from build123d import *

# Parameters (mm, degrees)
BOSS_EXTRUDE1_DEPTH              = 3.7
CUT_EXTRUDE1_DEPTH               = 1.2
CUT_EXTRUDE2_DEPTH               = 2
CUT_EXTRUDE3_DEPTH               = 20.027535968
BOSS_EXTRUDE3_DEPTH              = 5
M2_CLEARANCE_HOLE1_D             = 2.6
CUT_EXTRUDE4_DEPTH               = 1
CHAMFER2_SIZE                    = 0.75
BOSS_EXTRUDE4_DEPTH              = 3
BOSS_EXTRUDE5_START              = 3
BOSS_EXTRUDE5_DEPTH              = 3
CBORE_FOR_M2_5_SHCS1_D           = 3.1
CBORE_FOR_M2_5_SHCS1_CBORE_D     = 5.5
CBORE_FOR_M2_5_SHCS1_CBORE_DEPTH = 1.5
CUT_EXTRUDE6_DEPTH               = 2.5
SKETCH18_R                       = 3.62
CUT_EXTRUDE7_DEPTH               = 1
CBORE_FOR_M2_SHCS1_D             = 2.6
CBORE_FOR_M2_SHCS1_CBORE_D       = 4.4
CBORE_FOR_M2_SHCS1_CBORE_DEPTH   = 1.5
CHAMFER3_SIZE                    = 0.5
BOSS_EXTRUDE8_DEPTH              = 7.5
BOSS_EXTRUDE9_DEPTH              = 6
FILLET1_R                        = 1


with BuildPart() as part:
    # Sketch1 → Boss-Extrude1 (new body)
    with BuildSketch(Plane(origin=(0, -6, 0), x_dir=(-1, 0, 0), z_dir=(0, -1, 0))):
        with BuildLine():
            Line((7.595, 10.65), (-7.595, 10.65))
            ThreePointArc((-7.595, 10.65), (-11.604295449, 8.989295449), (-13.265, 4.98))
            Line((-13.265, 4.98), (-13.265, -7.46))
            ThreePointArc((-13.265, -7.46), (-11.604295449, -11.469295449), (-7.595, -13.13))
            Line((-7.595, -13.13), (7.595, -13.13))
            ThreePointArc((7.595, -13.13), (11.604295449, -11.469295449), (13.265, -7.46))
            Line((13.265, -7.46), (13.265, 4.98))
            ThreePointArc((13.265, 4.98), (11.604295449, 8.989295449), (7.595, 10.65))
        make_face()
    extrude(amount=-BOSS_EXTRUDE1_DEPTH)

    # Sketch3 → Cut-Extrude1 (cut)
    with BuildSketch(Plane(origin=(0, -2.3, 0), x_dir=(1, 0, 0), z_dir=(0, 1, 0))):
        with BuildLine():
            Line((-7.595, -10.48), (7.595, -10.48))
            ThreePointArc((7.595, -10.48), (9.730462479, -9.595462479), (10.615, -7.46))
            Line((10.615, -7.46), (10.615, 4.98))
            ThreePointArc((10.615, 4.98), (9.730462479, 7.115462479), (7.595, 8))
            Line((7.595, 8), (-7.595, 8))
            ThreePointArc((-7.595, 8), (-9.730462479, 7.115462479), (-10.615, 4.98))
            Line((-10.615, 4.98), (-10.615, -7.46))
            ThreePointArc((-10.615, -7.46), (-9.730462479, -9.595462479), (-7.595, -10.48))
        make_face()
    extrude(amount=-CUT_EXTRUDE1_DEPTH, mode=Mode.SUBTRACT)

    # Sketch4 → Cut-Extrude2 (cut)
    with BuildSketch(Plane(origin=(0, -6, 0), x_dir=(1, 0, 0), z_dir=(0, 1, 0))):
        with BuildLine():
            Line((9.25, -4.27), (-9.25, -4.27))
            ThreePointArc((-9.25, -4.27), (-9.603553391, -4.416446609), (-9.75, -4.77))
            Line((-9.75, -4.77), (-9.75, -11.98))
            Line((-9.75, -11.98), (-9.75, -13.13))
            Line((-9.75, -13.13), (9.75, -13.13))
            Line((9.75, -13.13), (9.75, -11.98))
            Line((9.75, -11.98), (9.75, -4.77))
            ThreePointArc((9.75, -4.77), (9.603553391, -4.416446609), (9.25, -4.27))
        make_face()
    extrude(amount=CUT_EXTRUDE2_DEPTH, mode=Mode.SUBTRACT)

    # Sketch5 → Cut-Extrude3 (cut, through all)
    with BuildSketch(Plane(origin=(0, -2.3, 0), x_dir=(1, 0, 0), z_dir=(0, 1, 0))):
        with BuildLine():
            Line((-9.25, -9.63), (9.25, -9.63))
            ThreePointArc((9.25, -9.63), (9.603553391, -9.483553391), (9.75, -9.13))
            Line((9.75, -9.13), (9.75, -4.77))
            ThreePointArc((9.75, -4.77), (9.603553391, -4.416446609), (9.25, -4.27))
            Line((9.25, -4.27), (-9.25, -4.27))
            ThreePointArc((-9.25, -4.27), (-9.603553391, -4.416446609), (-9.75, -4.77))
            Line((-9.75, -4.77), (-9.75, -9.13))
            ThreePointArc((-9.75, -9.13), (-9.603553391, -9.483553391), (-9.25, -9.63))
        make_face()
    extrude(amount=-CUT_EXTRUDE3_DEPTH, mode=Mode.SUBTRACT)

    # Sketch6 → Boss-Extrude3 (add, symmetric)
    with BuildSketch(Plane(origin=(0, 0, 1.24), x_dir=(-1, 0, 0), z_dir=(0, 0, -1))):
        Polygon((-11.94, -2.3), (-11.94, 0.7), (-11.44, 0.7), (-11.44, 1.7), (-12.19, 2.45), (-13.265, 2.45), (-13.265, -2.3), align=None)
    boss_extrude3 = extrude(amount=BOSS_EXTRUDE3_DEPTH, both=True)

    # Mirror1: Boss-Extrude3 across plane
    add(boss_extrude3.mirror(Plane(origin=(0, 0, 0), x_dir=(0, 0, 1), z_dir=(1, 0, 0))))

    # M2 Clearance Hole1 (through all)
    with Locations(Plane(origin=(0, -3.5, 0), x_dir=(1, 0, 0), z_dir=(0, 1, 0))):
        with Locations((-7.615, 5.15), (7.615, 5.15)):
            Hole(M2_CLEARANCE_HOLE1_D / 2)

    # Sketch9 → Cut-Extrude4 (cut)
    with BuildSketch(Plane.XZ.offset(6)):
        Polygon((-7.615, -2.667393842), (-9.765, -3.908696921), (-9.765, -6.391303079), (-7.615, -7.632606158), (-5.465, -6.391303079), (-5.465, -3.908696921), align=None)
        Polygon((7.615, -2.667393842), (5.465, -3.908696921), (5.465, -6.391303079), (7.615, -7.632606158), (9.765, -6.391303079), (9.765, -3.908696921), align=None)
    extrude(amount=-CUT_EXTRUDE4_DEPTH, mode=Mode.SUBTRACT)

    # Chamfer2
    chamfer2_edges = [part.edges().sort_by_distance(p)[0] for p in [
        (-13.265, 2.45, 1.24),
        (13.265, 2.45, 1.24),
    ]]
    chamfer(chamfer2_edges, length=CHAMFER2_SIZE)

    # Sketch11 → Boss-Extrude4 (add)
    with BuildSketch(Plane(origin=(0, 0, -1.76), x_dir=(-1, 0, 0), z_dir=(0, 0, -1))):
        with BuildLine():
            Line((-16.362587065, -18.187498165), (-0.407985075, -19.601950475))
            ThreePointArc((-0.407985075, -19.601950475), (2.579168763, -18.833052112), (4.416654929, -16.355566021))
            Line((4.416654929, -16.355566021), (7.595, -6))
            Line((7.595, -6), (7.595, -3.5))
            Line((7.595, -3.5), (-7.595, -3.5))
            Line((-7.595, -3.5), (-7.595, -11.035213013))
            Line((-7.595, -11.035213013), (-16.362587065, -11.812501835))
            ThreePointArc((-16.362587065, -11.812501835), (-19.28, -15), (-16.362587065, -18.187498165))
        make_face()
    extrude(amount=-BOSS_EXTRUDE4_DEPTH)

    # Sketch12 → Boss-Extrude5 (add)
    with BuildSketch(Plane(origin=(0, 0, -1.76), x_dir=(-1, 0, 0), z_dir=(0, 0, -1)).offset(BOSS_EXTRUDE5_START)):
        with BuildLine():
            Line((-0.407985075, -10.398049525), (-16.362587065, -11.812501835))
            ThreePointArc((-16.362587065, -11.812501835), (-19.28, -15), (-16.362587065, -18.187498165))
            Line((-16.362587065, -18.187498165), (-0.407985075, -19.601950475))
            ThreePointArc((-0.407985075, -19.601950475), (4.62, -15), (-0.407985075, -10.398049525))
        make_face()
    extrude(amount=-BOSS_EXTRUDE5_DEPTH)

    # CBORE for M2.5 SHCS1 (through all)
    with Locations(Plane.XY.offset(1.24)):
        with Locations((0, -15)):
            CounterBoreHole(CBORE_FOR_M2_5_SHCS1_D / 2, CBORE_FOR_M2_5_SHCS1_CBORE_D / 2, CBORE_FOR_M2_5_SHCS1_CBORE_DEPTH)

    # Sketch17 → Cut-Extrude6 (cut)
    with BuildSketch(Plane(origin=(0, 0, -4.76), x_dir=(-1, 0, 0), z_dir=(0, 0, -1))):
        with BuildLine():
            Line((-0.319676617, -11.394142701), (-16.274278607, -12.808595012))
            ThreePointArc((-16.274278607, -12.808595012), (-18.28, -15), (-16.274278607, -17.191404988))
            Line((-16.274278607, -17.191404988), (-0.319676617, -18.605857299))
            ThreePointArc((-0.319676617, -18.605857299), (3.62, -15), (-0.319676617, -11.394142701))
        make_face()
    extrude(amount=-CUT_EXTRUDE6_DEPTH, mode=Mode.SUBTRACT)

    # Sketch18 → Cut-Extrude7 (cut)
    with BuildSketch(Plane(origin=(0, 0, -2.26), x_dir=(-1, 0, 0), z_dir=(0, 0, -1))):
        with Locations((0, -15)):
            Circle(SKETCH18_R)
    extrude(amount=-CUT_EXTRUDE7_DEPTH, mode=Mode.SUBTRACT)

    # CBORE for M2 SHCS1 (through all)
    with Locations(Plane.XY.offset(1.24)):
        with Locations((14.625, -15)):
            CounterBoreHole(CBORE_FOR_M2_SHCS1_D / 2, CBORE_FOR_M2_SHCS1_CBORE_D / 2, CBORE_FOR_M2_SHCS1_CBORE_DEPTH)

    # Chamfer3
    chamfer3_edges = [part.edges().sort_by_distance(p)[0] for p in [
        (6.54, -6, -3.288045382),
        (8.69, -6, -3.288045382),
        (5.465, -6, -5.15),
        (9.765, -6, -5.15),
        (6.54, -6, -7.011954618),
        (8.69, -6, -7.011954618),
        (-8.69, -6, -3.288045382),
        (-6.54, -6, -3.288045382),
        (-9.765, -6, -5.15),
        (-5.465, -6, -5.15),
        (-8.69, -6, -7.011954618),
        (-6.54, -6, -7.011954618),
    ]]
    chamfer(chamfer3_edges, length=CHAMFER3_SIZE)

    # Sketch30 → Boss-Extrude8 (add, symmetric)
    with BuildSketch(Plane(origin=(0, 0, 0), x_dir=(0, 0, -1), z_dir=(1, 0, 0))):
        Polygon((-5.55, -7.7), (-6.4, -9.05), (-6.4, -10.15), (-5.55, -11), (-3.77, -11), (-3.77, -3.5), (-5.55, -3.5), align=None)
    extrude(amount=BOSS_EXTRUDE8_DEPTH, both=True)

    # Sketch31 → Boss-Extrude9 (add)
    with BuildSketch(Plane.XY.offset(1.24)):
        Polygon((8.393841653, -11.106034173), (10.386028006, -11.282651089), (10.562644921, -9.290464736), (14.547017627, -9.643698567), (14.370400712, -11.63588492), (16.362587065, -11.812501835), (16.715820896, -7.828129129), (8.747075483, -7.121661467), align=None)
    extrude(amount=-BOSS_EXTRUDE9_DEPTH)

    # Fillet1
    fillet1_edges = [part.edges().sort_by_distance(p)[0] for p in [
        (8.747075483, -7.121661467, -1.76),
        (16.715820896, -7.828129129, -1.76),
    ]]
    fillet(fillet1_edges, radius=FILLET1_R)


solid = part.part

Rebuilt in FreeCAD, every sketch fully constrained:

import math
import FreeCAD as App
import Part
import Sketcher
from FreeCAD import Vector
Q = App.Units.Quantity


def edges_at(feature, points):
    """Names of the edges that pass closest to the given points."""
    edges = feature.Shape.Edges
    near = lambda p: min(range(len(edges)), key=lambda i: edges[i].distToShape(Part.Vertex(*p))[0])
    return sorted({f"Edge{near(p) + 1}" for p in points})

doc = App.newDocument("Part")
body = doc.addObject("PartDesign::Body", "Body")

# Sketch on XZ plane
sketch1 = body.newObject("Sketcher::SketchObject", "Sketch")
sketch1.AttachmentSupport = (doc.getObject("XZ_Plane"), [""])
sketch1.MapMode = "FlatFace"
sketch1.AttachmentOffset = App.Placement(Vector(0, 0, 6), App.Rotation())
sketch1.addGeometry([
    Part.LineSegment(Vector(-8, -11, 0), Vector(8, -11, 0)),  # 0
    Part.ArcOfCircle(Part.Circle(Vector(8, -5, 0), Vector(0, 0, 1), 6), math.radians(-90), math.radians(0)),  # 1
    Part.LineSegment(Vector(13, -5, 0), Vector(13, 7, 0)),  # 2
    Part.ArcOfCircle(Part.Circle(Vector(8, 7, 0), Vector(0, 0, 1), 6), math.radians(0), math.radians(90)),  # 3
    Part.LineSegment(Vector(8, 13, 0), Vector(-8, 13, 0)),  # 4
    Part.ArcOfCircle(Part.Circle(Vector(-8, 7, 0), Vector(0, 0, 1), 6), math.radians(90), math.radians(180)),  # 5
    Part.LineSegment(Vector(-13, 7, 0), Vector(-13, -5, 0)),  # 6
    Part.ArcOfCircle(Part.Circle(Vector(-8, -5, 0), Vector(0, 0, 1), 6), math.radians(-180), math.radians(-90)),  # 7
], False)
sketch1.addConstraint([
    Sketcher.Constraint("Tangent", 0, 2, 1, 1),
    Sketcher.Constraint("Tangent", 1, 2, 2, 1),
    Sketcher.Constraint("Tangent", 2, 2, 3, 1),
    Sketcher.Constraint("Tangent", 3, 2, 4, 1),
    Sketcher.Constraint("Tangent", 4, 2, 5, 1),
    Sketcher.Constraint("Tangent", 5, 2, 6, 1),
    Sketcher.Constraint("Tangent", 6, 2, 7, 1),
    Sketcher.Constraint("Tangent", 7, 2, 0, 1),
    Sketcher.Constraint("Horizontal", 0),
    Sketcher.Constraint("Vertical", 2),
    Sketcher.Constraint("Horizontal", 4),
    Sketcher.Constraint("Vertical", 6),
    Sketcher.Constraint("Equal", 1, 3),
    Sketcher.Constraint("Equal", 3, 5),
    Sketcher.Constraint("Equal", 5, 7),
    Sketcher.Constraint("Radius", 1, Q("5.67 mm")),
    Sketcher.Constraint("DistanceX", 0, 1, 0, 2, Q("15.19 mm")),
    Sketcher.Constraint("DistanceY", 2, 1, 2, 2, Q("12.44 mm")),
    Sketcher.Constraint("DistanceY", 1, 3, -1, 1, Q("4.98 mm")),
    Sketcher.Constraint("DistanceX", -1, 1, 1, 3, Q("7.595 mm")),
])
pad1 = body.newObject("PartDesign::Pad", "Pad")
pad1.Profile = sketch1
pad1.Length = 3.7
pad1.Reversed = True

# Sketch on XZ plane
sketch2 = body.newObject("Sketcher::SketchObject", "Sketch001")
sketch2.AttachmentSupport = (doc.getObject("XZ_Plane"), [""])
sketch2.MapMode = "FlatFace"
sketch2.AttachmentOffset = App.Placement(Vector(0, 0, 2.3), App.Rotation())
sketch2.addGeometry([
    Part.LineSegment(Vector(-7.6, 10.5, 0), Vector(7.6, 10.5, 0)),  # 0
    Part.ArcOfCircle(Part.Circle(Vector(7.6, 7.5, 0), Vector(0, 0, 1), 3), math.radians(0), math.radians(90)),  # 1
    Part.LineSegment(Vector(10.6, 7.5, 0), Vector(10.6, -5, 0)),  # 2
    Part.ArcOfCircle(Part.Circle(Vector(7.6, -5, 0), Vector(0, 0, 1), 3), math.radians(-90), math.radians(0)),  # 3
    Part.LineSegment(Vector(7.6, -8, 0), Vector(-7.6, -8, 0)),  # 4
    Part.ArcOfCircle(Part.Circle(Vector(-7.6, -5, 0), Vector(0, 0, 1), 3), math.radians(-180), math.radians(-90)),  # 5
    Part.LineSegment(Vector(-10.6, -5, 0), Vector(-10.6, 7.5, 0)),  # 6
    Part.ArcOfCircle(Part.Circle(Vector(-7.6, 7.5, 0), Vector(0, 0, 1), 3), math.radians(90), math.radians(180)),  # 7
], False)
sketch2.addConstraint([
    Sketcher.Constraint("Tangent", 0, 2, 1, 2),
    Sketcher.Constraint("Tangent", 1, 1, 2, 1),
    Sketcher.Constraint("Tangent", 2, 2, 3, 2),
    Sketcher.Constraint("Tangent", 3, 1, 4, 1),
    Sketcher.Constraint("Tangent", 4, 2, 5, 2),
    Sketcher.Constraint("Tangent", 5, 1, 6, 1),
    Sketcher.Constraint("Tangent", 6, 2, 7, 2),
    Sketcher.Constraint("Tangent", 7, 1, 0, 1),
    Sketcher.Constraint("Horizontal", 0),
    Sketcher.Constraint("Vertical", 2),
    Sketcher.Constraint("Horizontal", 4),
    Sketcher.Constraint("Vertical", 6),
    Sketcher.Constraint("Equal", 1, 3),
    Sketcher.Constraint("Equal", 3, 5),
    Sketcher.Constraint("Equal", 5, 7),
    Sketcher.Constraint("Radius", 1, Q("3.02 mm")),
    Sketcher.Constraint("DistanceY", 3, 1, -1, 1, Q("8 mm")),
    Sketcher.Constraint("DistanceX", 0, 1, 0, 2, Q("15.19 mm")),
    Sketcher.Constraint("DistanceY", 2, 2, 2, 1, Q("12.44 mm")),
    Sketcher.Constraint("DistanceX", -1, 1, 1, 3, Q("7.595 mm")),
])
pocket1 = body.newObject("PartDesign::Pocket", "Pocket")
pocket1.Profile = sketch2
pocket1.Length = 1.2
pocket1.Reversed = True

# Sketch on XZ plane
sketch3 = body.newObject("Sketcher::SketchObject", "Sketch002")
sketch3.AttachmentSupport = (doc.getObject("XZ_Plane"), [""])
sketch3.MapMode = "FlatFace"
sketch3.AttachmentOffset = App.Placement(Vector(0, 0, 6), App.Rotation())
sketch3.addGeometry([
    Part.LineSegment(Vector(9.25, 4.27, 0), Vector(-9.25, 4.27, 0)),  # 0
    Part.ArcOfCircle(Part.Circle(Vector(-9.25, 4.77, 0), Vector(0, 0, 1), 0.5), math.radians(180), math.radians(270)),  # 1
    Part.LineSegment(Vector(-9.75, 4.77, 0), Vector(-9.75, 13.13, 0)),  # 2
    Part.LineSegment(Vector(-9.75, 13.13, 0), Vector(9.75, 13.13, 0)),  # 3
    Part.LineSegment(Vector(9.75, 13.13, 0), Vector(9.75, 4.77, 0)),  # 4
    Part.ArcOfCircle(Part.Circle(Vector(9.25, 4.77, 0), Vector(0, 0, 1), 0.5), math.radians(-90), math.radians(0)),  # 5
], False)
sketch3.addConstraint([
    Sketcher.Constraint("Tangent", 0, 2, 1, 2),
    Sketcher.Constraint("Tangent", 1, 1, 2, 1),
    Sketcher.Constraint("Coincident", 2, 2, 3, 1),
    Sketcher.Constraint("Coincident", 3, 2, 4, 1),
    Sketcher.Constraint("Tangent", 4, 2, 5, 2),
    Sketcher.Constraint("Tangent", 5, 1, 0, 1),
    Sketcher.Constraint("Horizontal", 0),
    Sketcher.Constraint("Vertical", 2),
    Sketcher.Constraint("Horizontal", 3),
    Sketcher.Constraint("Vertical", 4),
    Sketcher.Constraint("Equal", 1, 5),
    Sketcher.Constraint("Radius", 1, Q("0.5 mm")),
    Sketcher.Constraint("DistanceX", 0, 2, 0, 1, Q("18.5 mm")),
    Sketcher.Constraint("DistanceY", 2, 1, 2, 2, Q("8.36 mm")),
    Sketcher.Constraint("DistanceX", 1, 3, -1, 1, Q("9.25 mm")),
    Sketcher.Constraint("DistanceY", -1, 1, 1, 3, Q("4.77 mm")),
])
pocket2 = body.newObject("PartDesign::Pocket", "Pocket001")
pocket2.Profile = sketch3
pocket2.Length = 2

# Sketch on XZ plane
sketch4 = body.newObject("Sketcher::SketchObject", "Sketch003")
sketch4.AttachmentSupport = (doc.getObject("XZ_Plane"), [""])
sketch4.MapMode = "FlatFace"
sketch4.AttachmentOffset = App.Placement(Vector(0, 0, 2.3), App.Rotation())
sketch4.addGeometry([
    Part.LineSegment(Vector(-9.25, 9.63, 0), Vector(9.25, 9.63, 0)),  # 0
    Part.ArcOfCircle(Part.Circle(Vector(9.25, 9.13, 0), Vector(0, 0, 1), 0.5), math.radians(0), math.radians(90)),  # 1
    Part.LineSegment(Vector(9.75, 9.13, 0), Vector(9.75, 4.77, 0)),  # 2
    Part.ArcOfCircle(Part.Circle(Vector(9.25, 4.77, 0), Vector(0, 0, 1), 0.5), math.radians(-90), math.radians(0)),  # 3
    Part.LineSegment(Vector(9.25, 4.27, 0), Vector(-9.25, 4.27, 0)),  # 4
    Part.ArcOfCircle(Part.Circle(Vector(-9.25, 4.77, 0), Vector(0, 0, 1), 0.5), math.radians(180), math.radians(270)),  # 5
    Part.LineSegment(Vector(-9.75, 4.77, 0), Vector(-9.75, 9.13, 0)),  # 6
    Part.ArcOfCircle(Part.Circle(Vector(-9.25, 9.13, 0), Vector(0, 0, 1), 0.5), math.radians(90), math.radians(180)),  # 7
], False)
sketch4.addConstraint([
    Sketcher.Constraint("Tangent", 0, 2, 1, 2),
    Sketcher.Constraint("Tangent", 1, 1, 2, 1),
    Sketcher.Constraint("Tangent", 2, 2, 3, 2),
    Sketcher.Constraint("Tangent", 3, 1, 4, 1),
    Sketcher.Constraint("Tangent", 4, 2, 5, 2),
    Sketcher.Constraint("Tangent", 5, 1, 6, 1),
    Sketcher.Constraint("Tangent", 6, 2, 7, 2),
    Sketcher.Constraint("Tangent", 7, 1, 0, 1),
    Sketcher.Constraint("Horizontal", 0),
    Sketcher.Constraint("Vertical", 2),
    Sketcher.Constraint("Horizontal", 4),
    Sketcher.Constraint("Vertical", 6),
    Sketcher.Constraint("Equal", 1, 3),
    Sketcher.Constraint("Equal", 3, 5),
    Sketcher.Constraint("Equal", 5, 7),
    Sketcher.Constraint("Radius", 1, Q("0.5 mm")),
    Sketcher.Constraint("DistanceX", 0, 1, 0, 2, Q("18.5 mm")),
    Sketcher.Constraint("DistanceY", 2, 2, 2, 1, Q("4.36 mm")),
    Sketcher.Constraint("DistanceX", -1, 1, 1, 3, Q("9.25 mm")),
    Sketcher.Constraint("DistanceY", -1, 1, 1, 3, Q("9.13 mm")),
])
pocket3 = body.newObject("PartDesign::Pocket", "Pocket002")
pocket3.Profile = sketch4
pocket3.Type = "ThroughAll"
pocket3.Reversed = True

# Sketch on XY plane
sketch5 = body.newObject("Sketcher::SketchObject", "Sketch004")
sketch5.AttachmentSupport = (doc.getObject("XY_Plane"), [""])
sketch5.MapMode = "FlatFace"
sketch5.AttachmentOffset = App.Placement(Vector(0, 0, 1.24), App.Rotation())
sketch5.addGeometry([
    Part.LineSegment(Vector(11.9, -2.3, 0), Vector(11.9, 0.7, 0)),  # 0
    Part.LineSegment(Vector(11.9, 0.7, 0), Vector(11.4, 0.7, 0)),  # 1
    Part.LineSegment(Vector(11.4, 0.7, 0), Vector(11.4, 1.7, 0)),  # 2
    Part.LineSegment(Vector(11.4, 1.7, 0), Vector(12.2, 2.5, 0)),  # 3
    Part.LineSegment(Vector(12.2, 2.5, 0), Vector(13.3, 2.5, 0)),  # 4
    Part.LineSegment(Vector(13.3, 2.5, 0), Vector(13.3, -2.3, 0)),  # 5
    Part.LineSegment(Vector(13.3, -2.3, 0), Vector(11.9, -2.3, 0)),  # 6
], False)
sketch5.addConstraint([
    Sketcher.Constraint("Coincident", 0, 2, 1, 1),
    Sketcher.Constraint("Coincident", 1, 2, 2, 1),
    Sketcher.Constraint("Coincident", 2, 2, 3, 1),
    Sketcher.Constraint("Coincident", 3, 2, 4, 1),
    Sketcher.Constraint("Coincident", 4, 2, 5, 1),
    Sketcher.Constraint("Coincident", 5, 2, 6, 1),
    Sketcher.Constraint("Coincident", 6, 2, 0, 1),
    Sketcher.Constraint("Vertical", 0),
    Sketcher.Constraint("Horizontal", 1),
    Sketcher.Constraint("Vertical", 2),
    Sketcher.Constraint("Horizontal", 4),
    Sketcher.Constraint("Vertical", 5),
    Sketcher.Constraint("Horizontal", 6),
    Sketcher.Constraint("DistanceY", 0, 1, 0, 2, Q("3 mm")),
    Sketcher.Constraint("DistanceY", 2, 1, 2, 2, Q("1 mm")),
    Sketcher.Constraint("Angle", 3, Q("45 deg")),
    Sketcher.Constraint("DistanceX", 1, 2, 1, 1, Q("0.5 mm")),
    Sketcher.Constraint("DistanceY", 5, 2, 5, 1, Q("4.75 mm")),
    Sketcher.Constraint("DistanceY", -1, 1, 0, 2, Q("0.7 mm")),
    Sketcher.Constraint("DistanceX", 4, 1, 4, 2, Q("1.075 mm")),
    Sketcher.Constraint("DistanceX", -1, 1, 0, 2, Q("11.94 mm")),
])
pad2 = body.newObject("PartDesign::Pad", "Pad001")
pad2.Profile = sketch5
pad2.Length = 10
pad2.Midplane = True
doc.recompute()

mirrored = body.newObject("PartDesign::Mirrored", "Mirrored")
mirrored.Originals = [pad2]
mirrored.MirrorPlane = (doc.getObject("YZ_Plane"), [""])
body.Tip = mirrored

# Sketch on XZ plane
sketch6 = body.newObject("Sketcher::SketchObject", "Sketch005")
sketch6.AttachmentSupport = (doc.getObject("XZ_Plane"), [""])
sketch6.MapMode = "FlatFace"
sketch6.AttachmentOffset = App.Placement(Vector(0, 0, 3.5), App.Rotation())
sketch6.addGeometry([
    Part.Circle(Vector(-7.6, -5.2, 0), Vector(0, 0, 1), 1.3),
    Part.Circle(Vector(7.6, -5.2, 0), Vector(0, 0, 1), 1.3),
], False)
sketch6.addConstraint([
    Sketcher.Constraint("Equal", 0, 1),
    Sketcher.Constraint("Symmetric", 0, 3, 1, 3, -2),
    Sketcher.Constraint("Diameter", 0, Q("2.6 mm")),
    Sketcher.Constraint("DistanceY", 0, 3, -1, 1, Q("5.15 mm")),
    Sketcher.Constraint("DistanceX", 0, 3, 1, 3, Q("15.23 mm")),
])
doc.recompute()
hole = body.newObject("PartDesign::Hole", "Hole")
hole.Profile = sketch6
hole.ThreadType = "None"
hole.Diameter = 2.6
hole.DepthType = "ThroughAll"
hole.Reversed = True

# Sketch on XZ plane
sketch7 = body.newObject("Sketcher::SketchObject", "Sketch006")
sketch7.AttachmentSupport = (doc.getObject("XZ_Plane"), [""])
sketch7.MapMode = "FlatFace"
sketch7.AttachmentOffset = App.Placement(Vector(0, 0, 6), App.Rotation())
sketch7.addGeometry([
    Part.LineSegment(Vector(-7.6, -2.7, 0), Vector(-9.8, -3.9, 0)),  # 0
    Part.LineSegment(Vector(-9.8, -3.9, 0), Vector(-9.8, -6.4, 0)),  # 1
    Part.LineSegment(Vector(-9.8, -6.4, 0), Vector(-7.6, -7.6, 0)),  # 2
    Part.LineSegment(Vector(-7.6, -7.6, 0), Vector(-5.5, -6.4, 0)),  # 3
    Part.LineSegment(Vector(-5.5, -6.4, 0), Vector(-5.5, -3.9, 0)),  # 4
    Part.LineSegment(Vector(-5.5, -3.9, 0), Vector(-7.6, -2.7, 0)),  # 5
    Part.LineSegment(Vector(7.6, -2.7, 0), Vector(5.5, -3.9, 0)),  # 6
    Part.LineSegment(Vector(5.5, -3.9, 0), Vector(5.5, -6.4, 0)),  # 7
    Part.LineSegment(Vector(5.5, -6.4, 0), Vector(7.6, -7.6, 0)),  # 8
    Part.LineSegment(Vector(7.6, -7.6, 0), Vector(9.8, -6.4, 0)),  # 9
    Part.LineSegment(Vector(9.8, -6.4, 0), Vector(9.8, -3.9, 0)),  # 10
    Part.LineSegment(Vector(9.8, -3.9, 0), Vector(7.6, -2.7, 0)),  # 11
], False)
sketch7.addConstraint([
    Sketcher.Constraint("Coincident", 0, 2, 1, 1),
    Sketcher.Constraint("Coincident", 1, 2, 2, 1),
    Sketcher.Constraint("Coincident", 2, 2, 3, 1),
    Sketcher.Constraint("Coincident", 3, 2, 4, 1),
    Sketcher.Constraint("Coincident", 4, 2, 5, 1),
    Sketcher.Constraint("Coincident", 5, 2, 0, 1),
    Sketcher.Constraint("Coincident", 6, 2, 7, 1),
    Sketcher.Constraint("Coincident", 7, 2, 8, 1),
    Sketcher.Constraint("Coincident", 8, 2, 9, 1),
    Sketcher.Constraint("Coincident", 9, 2, 10, 1),
    Sketcher.Constraint("Coincident", 10, 2, 11, 1),
    Sketcher.Constraint("Coincident", 11, 2, 6, 1),
    Sketcher.Constraint("Vertical", 1),
    Sketcher.Constraint("Vertical", 4),
    Sketcher.Constraint("Vertical", 7),
    Sketcher.Constraint("Vertical", 10),
    Sketcher.Constraint("Symmetric", 4, 2, 6, 2, -2),
    Sketcher.Constraint("Symmetric", 2, 2, 8, 2, -2),
    Sketcher.Constraint("Symmetric", 1, 2, 9, 2, -2),
    Sketcher.Constraint("Symmetric", 5, 2, 11, 2, -2),
    Sketcher.Constraint("Parallel", 0, 3),
    Sketcher.Constraint("Parallel", 2, 5),
    Sketcher.Constraint("Parallel", 3, 6),
    Sketcher.Constraint("Parallel", 5, 8),
    Sketcher.Constraint("Parallel", 8, 11),
    Sketcher.Constraint("Horizontal", 1, 2, 3, 2),
    Sketcher.Constraint("Horizontal", 0, 2, 4, 2),
    Sketcher.Constraint("Angle", 0, Q("-150 deg")),
    Sketcher.Constraint("DistanceX", 1, 2, 3, 2, Q("4.3 mm")),
    Sketcher.Constraint("DistanceX", 4, 2, 6, 2, Q("10.93 mm")),
    Sketcher.Constraint("DistanceY", 1, 2, 1, 1, Q("2.482606 mm")),
    Sketcher.Constraint("DistanceY", 0, 2, -1, 1, Q("3.908697 mm")),
])
pocket4 = body.newObject("PartDesign::Pocket", "Pocket003")
pocket4.Profile = sketch7
pocket4.Length = 1
doc.recompute()

chamfer = body.newObject("PartDesign::Chamfer", "Chamfer")
chamfer.Base = (pocket4, edges_at(pocket4, [(-13.265, 2.45, 1.24), (13.265, 2.45, 1.24)]))
chamfer.Size = 0.75

# Sketch on XY plane
sketch8 = body.newObject("Sketcher::SketchObject", "Sketch007")
sketch8.AttachmentSupport = (doc.getObject("XY_Plane"), [""])
sketch8.MapMode = "FlatFace"
sketch8.AttachmentOffset = App.Placement(Vector(0, 0, -1.76), App.Rotation())
sketch8.addGeometry([
    Part.LineSegment(Vector(16.4, -18.2, 0), Vector(0.4, -19.6, 0)),  # 0
    Part.ArcOfCircle(Part.Circle(Vector(0, -15, 0), Vector(0, 0, 1), 4.6), math.radians(-163), math.radians(-85)),  # 1
    Part.LineSegment(Vector(-4.4, -16.4, 0), Vector(-7.6, -6, 0)),  # 2
    Part.LineSegment(Vector(-7.6, -6, 0), Vector(-7.6, -3.5, 0)),  # 3
    Part.LineSegment(Vector(-7.6, -3.5, 0), Vector(7.6, -3.5, 0)),  # 4
    Part.LineSegment(Vector(7.6, -3.5, 0), Vector(7.6, -11, 0)),  # 5
    Part.LineSegment(Vector(7.6, -11, 0), Vector(16.4, -11.8, 0)),  # 6
    Part.ArcOfCircle(Part.Circle(Vector(16.1, -15, 0), Vector(0, 0, 1), 3.2), math.radians(-85), math.radians(85)),  # 7
], False)
sketch8.addConstraint([
    Sketcher.Constraint("Tangent", 0, 2, 1, 2),
    Sketcher.Constraint("Tangent", 1, 1, 2, 1),
    Sketcher.Constraint("Coincident", 2, 2, 3, 1),
    Sketcher.Constraint("Coincident", 3, 2, 4, 1),
    Sketcher.Constraint("Coincident", 4, 2, 5, 1),
    Sketcher.Constraint("Coincident", 5, 2, 6, 1),
    Sketcher.Constraint("Tangent", 6, 2, 7, 2),
    Sketcher.Constraint("Tangent", 7, 1, 0, 1),
    Sketcher.Constraint("Vertical", 3),
    Sketcher.Constraint("Horizontal", 4),
    Sketcher.Constraint("Vertical", 5),
    Sketcher.Constraint("PointOnObject", 1, 3, -2),
    Sketcher.Constraint("Horizontal", 1, 3, 7, 3),
    Sketcher.Constraint("Vertical", 6, 2, 7, 1),
    Sketcher.Constraint("Radius", 7, Q("3.2 mm")),
    Sketcher.Constraint("Radius", 1, Q("4.62 mm")),
    Sketcher.Constraint("DistanceY", 3, 1, 3, 2, Q("2.5 mm")),
    Sketcher.Constraint("DistanceY", 1, 3, -1, 1, Q("15 mm")),
    Sketcher.Constraint("DistanceY", 2, 2, -1, 1, Q("6 mm")),
    Sketcher.Constraint("DistanceX", 4, 1, 4, 2, Q("15.19 mm")),
    Sketcher.Constraint("DistanceX", -1, 1, 7, 3, Q("16.08 mm")),
    Sketcher.Constraint("DistanceX", 2, 2, -1, 1, Q("7.595 mm")),
])
pad3 = body.newObject("PartDesign::Pad", "Pad002")
pad3.Profile = sketch8
pad3.Length = 3

# Sketch on XY plane
sketch9 = body.newObject("Sketcher::SketchObject", "Sketch008")
sketch9.AttachmentSupport = (doc.getObject("XY_Plane"), [""])
sketch9.MapMode = "FlatFace"
sketch9.AttachmentOffset = App.Placement(Vector(0, 0, -4.76), App.Rotation())
sketch9.addGeometry([
    Part.LineSegment(Vector(0.4, -10.4, 0), Vector(16.4, -11.8, 0)),
    Part.ArcOfCircle(Part.Circle(Vector(16.1, -15, 0), Vector(0, 0, 1), 3.2), math.radians(-85), math.radians(85)),
    Part.LineSegment(Vector(16.4, -18.2, 0), Vector(0.4, -19.6, 0)),
    Part.ArcOfCircle(Part.Circle(Vector(0, -15, 0), Vector(0, 0, 1), 4.6), math.radians(85), math.radians(275)),
], False)
sketch9.addConstraint([
    Sketcher.Constraint("Tangent", 0, 2, 1, 2),
    Sketcher.Constraint("Tangent", 1, 1, 2, 1),
    Sketcher.Constraint("Tangent", 2, 2, 3, 2),
    Sketcher.Constraint("Tangent", 3, 1, 0, 1),
    Sketcher.Constraint("PointOnObject", 3, 3, -2),
    Sketcher.Constraint("Horizontal", 1, 3, 3, 3),
    Sketcher.Constraint("Radius", 1, Q("3.2 mm")),
    Sketcher.Constraint("Radius", 3, Q("4.62 mm")),
    Sketcher.Constraint("DistanceY", 1, 3, -1, 1, Q("15 mm")),
    Sketcher.Constraint("DistanceX", -1, 1, 1, 3, Q("16.08 mm")),
])
pad4 = body.newObject("PartDesign::Pad", "Pad003")
pad4.Profile = sketch9
pad4.Length = 3

# Sketch on XY plane
sketch10 = body.newObject("Sketcher::SketchObject", "Sketch009")
sketch10.AttachmentSupport = (doc.getObject("XY_Plane"), [""])
sketch10.MapMode = "FlatFace"
sketch10.AttachmentOffset = App.Placement(Vector(0, 0, 1.24), App.Rotation())
sketch10.addGeometry(Part.Circle(Vector(0, -15, 0), Vector(0, 0, 1), 1.6), False)
sketch10.addConstraint([
    Sketcher.Constraint("PointOnObject", 0, 3, -2),
    Sketcher.Constraint("Diameter", 0, Q("3.1 mm")),
    Sketcher.Constraint("DistanceY", 0, 3, -1, 1, Q("15 mm")),
])
doc.recompute()
hole2 = body.newObject("PartDesign::Hole", "Hole001")
hole2.Profile = sketch10
hole2.ThreadType = "None"
hole2.Diameter = 3.1
hole2.DepthType = "ThroughAll"
hole2.HoleCutType = "Counterbore"
hole2.HoleCutDiameter = 5.5
hole2.HoleCutDepth = 1.5

# Sketch on XY plane
sketch11 = body.newObject("Sketcher::SketchObject", "Sketch010")
sketch11.AttachmentSupport = (doc.getObject("XY_Plane"), [""])
sketch11.MapMode = "FlatFace"
sketch11.AttachmentOffset = App.Placement(Vector(0, 0, -4.76), App.Rotation())
sketch11.addGeometry([
    Part.LineSegment(Vector(0.3, -11.4, 0), Vector(16.3, -12.8, 0)),
    Part.ArcOfCircle(Part.Circle(Vector(16.1, -15, 0), Vector(0, 0, 1), 2.2), math.radians(-85), math.radians(85)),
    Part.LineSegment(Vector(16.3, -17.2, 0), Vector(0.3, -18.6, 0)),
    Part.ArcOfCircle(Part.Circle(Vector(0, -15, 0), Vector(0, 0, 1), 3.6), math.radians(85), math.radians(275)),
], False)
sketch11.addConstraint([
    Sketcher.Constraint("Tangent", 0, 2, 1, 2),
    Sketcher.Constraint("Tangent", 1, 1, 2, 1),
    Sketcher.Constraint("Tangent", 2, 2, 3, 2),
    Sketcher.Constraint("Tangent", 3, 1, 0, 1),
    Sketcher.Constraint("PointOnObject", 3, 3, -2),
    Sketcher.Constraint("Horizontal", 1, 3, 3, 3),
    Sketcher.Constraint("Radius", 1, Q("2.2 mm")),
    Sketcher.Constraint("Radius", 3, Q("3.62 mm")),
    Sketcher.Constraint("DistanceY", 1, 3, -1, 1, Q("15 mm")),
    Sketcher.Constraint("DistanceX", -1, 1, 1, 3, Q("16.08 mm")),
])
pocket5 = body.newObject("PartDesign::Pocket", "Pocket004")
pocket5.Profile = sketch11
pocket5.Length = 2.5
pocket5.Reversed = True

# Sketch on XY plane
sketch12 = body.newObject("Sketcher::SketchObject", "Sketch011")
sketch12.AttachmentSupport = (doc.getObject("XY_Plane"), [""])
sketch12.MapMode = "FlatFace"
sketch12.AttachmentOffset = App.Placement(Vector(0, 0, -2.26), App.Rotation())
sketch12.addGeometry(Part.Circle(Vector(0, -15, 0), Vector(0, 0, 1), 3.6), False)
sketch12.addConstraint([
    Sketcher.Constraint("PointOnObject", 0, 3, -2),
    Sketcher.Constraint("Diameter", 0, Q("7.24 mm")),
    Sketcher.Constraint("DistanceY", 0, 3, -1, 1, Q("15 mm")),
])
pocket6 = body.newObject("PartDesign::Pocket", "Pocket005")
pocket6.Profile = sketch12
pocket6.Length = 1
pocket6.Reversed = True

# Sketch on XY plane
sketch13 = body.newObject("Sketcher::SketchObject", "Sketch012")
sketch13.AttachmentSupport = (doc.getObject("XY_Plane"), [""])
sketch13.MapMode = "FlatFace"
sketch13.AttachmentOffset = App.Placement(Vector(0, 0, 1.24), App.Rotation())
sketch13.addGeometry(Part.Circle(Vector(14.6, -15, 0), Vector(0, 0, 1), 1.3), False)
sketch13.addConstraint([
    Sketcher.Constraint("Diameter", 0, Q("2.6 mm")),
    Sketcher.Constraint("DistanceY", 0, 3, -1, 1, Q("15 mm")),
    Sketcher.Constraint("DistanceX", -1, 1, 0, 3, Q("14.625 mm")),
])
doc.recompute()
hole3 = body.newObject("PartDesign::Hole", "Hole002")
hole3.Profile = sketch13
hole3.ThreadType = "None"
hole3.Diameter = 2.6
hole3.DepthType = "ThroughAll"
hole3.HoleCutType = "Counterbore"
hole3.HoleCutDiameter = 4.4
hole3.HoleCutDepth = 1.5
doc.recompute()

chamfer2 = body.newObject("PartDesign::Chamfer", "Chamfer001")
chamfer2.Base = (hole3, edges_at(hole3, [
    (6.54, -6, -3.288),
    (8.69, -6, -3.288),
    (5.465, -6, -5.15),
    (9.765, -6, -5.15),
    (6.54, -6, -7.012),
    (8.69, -6, -7.012),
    (-8.69, -6, -3.288),
    (-6.54, -6, -3.288),
    (-9.765, -6, -5.15),
    (-5.465, -6, -5.15),
    (-8.69, -6, -7.012),
    (-6.54, -6, -7.012),
]))
chamfer2.Size = 0.5

# Sketch on YZ plane
sketch14 = body.newObject("Sketcher::SketchObject", "Sketch013")
sketch14.AttachmentSupport = (doc.getObject("YZ_Plane"), [""])
sketch14.MapMode = "FlatFace"
sketch14.addGeometry([
    Part.LineSegment(Vector(-7.7, 5.5, 0), Vector(-9.1, 6.4, 0)),  # 0
    Part.LineSegment(Vector(-9.1, 6.4, 0), Vector(-10.2, 6.4, 0)),  # 1
    Part.LineSegment(Vector(-10.2, 6.4, 0), Vector(-11, 5.5, 0)),  # 2
    Part.LineSegment(Vector(-11, 5.5, 0), Vector(-11, 3.8, 0)),  # 3
    Part.LineSegment(Vector(-11, 3.8, 0), Vector(-3.5, 3.8, 0)),  # 4
    Part.LineSegment(Vector(-3.5, 3.8, 0), Vector(-3.5, 5.5, 0)),  # 5
    Part.LineSegment(Vector(-3.5, 5.5, 0), Vector(-7.7, 5.5, 0)),  # 6
], False)
sketch14.addConstraint([
    Sketcher.Constraint("Coincident", 0, 2, 1, 1),
    Sketcher.Constraint("Coincident", 1, 2, 2, 1),
    Sketcher.Constraint("Coincident", 2, 2, 3, 1),
    Sketcher.Constraint("Coincident", 3, 2, 4, 1),
    Sketcher.Constraint("Coincident", 4, 2, 5, 1),
    Sketcher.Constraint("Coincident", 5, 2, 6, 1),
    Sketcher.Constraint("Coincident", 6, 2, 0, 1),
    Sketcher.Constraint("Horizontal", 1),
    Sketcher.Constraint("Vertical", 3),
    Sketcher.Constraint("Horizontal", 4),
    Sketcher.Constraint("Vertical", 5),
    Sketcher.Constraint("Horizontal", 6),
    Sketcher.Constraint("Horizontal", 2, 2, 5, 2),
    Sketcher.Constraint("Angle", 2, Q("-135 deg")),
    Sketcher.Constraint("DistanceX", 1, 2, 1, 1, Q("1.1 mm")),
    Sketcher.Constraint("DistanceX", 4, 1, 4, 2, Q("7.5 mm")),
    Sketcher.Constraint("DistanceX", 6, 2, 6, 1, Q("4.2 mm")),
    Sketcher.Constraint("DistanceX", 2, 2, -1, 1, Q("11 mm")),
    Sketcher.Constraint("DistanceY", 3, 2, 3, 1, Q("1.78 mm")),
    Sketcher.Constraint("DistanceY", -1, 1, 0, 2, Q("6.4 mm")),
    Sketcher.Constraint("DistanceX", 0, 2, -1, 1, Q("9.05 mm")),
])
pad5 = body.newObject("PartDesign::Pad", "Pad004")
pad5.Profile = sketch14
pad5.Length = 15
pad5.Midplane = True

# Sketch on XY plane
sketch15 = body.newObject("Sketcher::SketchObject", "Sketch014")
sketch15.AttachmentSupport = (doc.getObject("XY_Plane"), [""])
sketch15.MapMode = "FlatFace"
sketch15.AttachmentOffset = App.Placement(Vector(0, 0, 1.24), App.Rotation())
sketch15.addGeometry([
    Part.LineSegment(Vector(8.4, -11.1, 0), Vector(10.4, -11.3, 0)),  # 0
    Part.LineSegment(Vector(10.4, -11.3, 0), Vector(10.6, -9.3, 0)),  # 1
    Part.LineSegment(Vector(10.6, -9.3, 0), Vector(14.5, -9.6, 0)),  # 2
    Part.LineSegment(Vector(14.5, -9.6, 0), Vector(14.4, -11.6, 0)),  # 3
    Part.LineSegment(Vector(14.4, -11.6, 0), Vector(16.4, -11.8, 0)),  # 4
    Part.LineSegment(Vector(16.4, -11.8, 0), Vector(16.7, -7.8, 0)),  # 5
    Part.LineSegment(Vector(16.7, -7.8, 0), Vector(8.7, -7.1, 0)),  # 6
    Part.LineSegment(Vector(8.7, -7.1, 0), Vector(8.4, -11.1, 0)),  # 7
], False)
sketch15.addConstraint([
    Sketcher.Constraint("Coincident", 0, 2, 1, 1),
    Sketcher.Constraint("Coincident", 1, 2, 2, 1),
    Sketcher.Constraint("Coincident", 2, 2, 3, 1),
    Sketcher.Constraint("Coincident", 3, 2, 4, 1),
    Sketcher.Constraint("Coincident", 4, 2, 5, 1),
    Sketcher.Constraint("Coincident", 5, 2, 6, 1),
    Sketcher.Constraint("Coincident", 6, 2, 7, 1),
    Sketcher.Constraint("Coincident", 7, 2, 0, 1),
    Sketcher.Constraint("Perpendicular", 0, 1),
    Sketcher.Constraint("Perpendicular", 1, 2),
    Sketcher.Constraint("Perpendicular", 2, 3),
    Sketcher.Constraint("Perpendicular", 3, 4),
    Sketcher.Constraint("Perpendicular", 4, 5),
    Sketcher.Constraint("Perpendicular", 5, 6),
    Sketcher.Constraint("Perpendicular", 6, 7),
    Sketcher.Constraint("Equal", 0, 1),
    Sketcher.Constraint("Equal", 1, 3),
    Sketcher.Constraint("Equal", 3, 4),
    Sketcher.Constraint("Equal", 2, 5),
    Sketcher.Constraint("Distance", 0, Q("2 mm")),
    Sketcher.Constraint("Distance", 2, Q("4 mm")),
    Sketcher.Constraint("DistanceY", 2, 2, -1, 1, Q("9.643699 mm")),
    Sketcher.Constraint("DistanceX", -1, 1, 3, 2, Q("14.370401 mm")),
    Sketcher.Constraint("DistanceY", 4, 2, -1, 1, Q("11.812502 mm")),
])
pad6 = body.newObject("PartDesign::Pad", "Pad005")
pad6.Profile = sketch15
pad6.Length = 6
pad6.Reversed = True
doc.recompute()

fillet = body.newObject("PartDesign::Fillet", "Fillet")
fillet.Base = (pad6, edges_at(pad6, [(8.747, -7.122, -1.76), (16.716, -7.828, -1.76)]))
fillet.Radius = 1

doc.recompute()
